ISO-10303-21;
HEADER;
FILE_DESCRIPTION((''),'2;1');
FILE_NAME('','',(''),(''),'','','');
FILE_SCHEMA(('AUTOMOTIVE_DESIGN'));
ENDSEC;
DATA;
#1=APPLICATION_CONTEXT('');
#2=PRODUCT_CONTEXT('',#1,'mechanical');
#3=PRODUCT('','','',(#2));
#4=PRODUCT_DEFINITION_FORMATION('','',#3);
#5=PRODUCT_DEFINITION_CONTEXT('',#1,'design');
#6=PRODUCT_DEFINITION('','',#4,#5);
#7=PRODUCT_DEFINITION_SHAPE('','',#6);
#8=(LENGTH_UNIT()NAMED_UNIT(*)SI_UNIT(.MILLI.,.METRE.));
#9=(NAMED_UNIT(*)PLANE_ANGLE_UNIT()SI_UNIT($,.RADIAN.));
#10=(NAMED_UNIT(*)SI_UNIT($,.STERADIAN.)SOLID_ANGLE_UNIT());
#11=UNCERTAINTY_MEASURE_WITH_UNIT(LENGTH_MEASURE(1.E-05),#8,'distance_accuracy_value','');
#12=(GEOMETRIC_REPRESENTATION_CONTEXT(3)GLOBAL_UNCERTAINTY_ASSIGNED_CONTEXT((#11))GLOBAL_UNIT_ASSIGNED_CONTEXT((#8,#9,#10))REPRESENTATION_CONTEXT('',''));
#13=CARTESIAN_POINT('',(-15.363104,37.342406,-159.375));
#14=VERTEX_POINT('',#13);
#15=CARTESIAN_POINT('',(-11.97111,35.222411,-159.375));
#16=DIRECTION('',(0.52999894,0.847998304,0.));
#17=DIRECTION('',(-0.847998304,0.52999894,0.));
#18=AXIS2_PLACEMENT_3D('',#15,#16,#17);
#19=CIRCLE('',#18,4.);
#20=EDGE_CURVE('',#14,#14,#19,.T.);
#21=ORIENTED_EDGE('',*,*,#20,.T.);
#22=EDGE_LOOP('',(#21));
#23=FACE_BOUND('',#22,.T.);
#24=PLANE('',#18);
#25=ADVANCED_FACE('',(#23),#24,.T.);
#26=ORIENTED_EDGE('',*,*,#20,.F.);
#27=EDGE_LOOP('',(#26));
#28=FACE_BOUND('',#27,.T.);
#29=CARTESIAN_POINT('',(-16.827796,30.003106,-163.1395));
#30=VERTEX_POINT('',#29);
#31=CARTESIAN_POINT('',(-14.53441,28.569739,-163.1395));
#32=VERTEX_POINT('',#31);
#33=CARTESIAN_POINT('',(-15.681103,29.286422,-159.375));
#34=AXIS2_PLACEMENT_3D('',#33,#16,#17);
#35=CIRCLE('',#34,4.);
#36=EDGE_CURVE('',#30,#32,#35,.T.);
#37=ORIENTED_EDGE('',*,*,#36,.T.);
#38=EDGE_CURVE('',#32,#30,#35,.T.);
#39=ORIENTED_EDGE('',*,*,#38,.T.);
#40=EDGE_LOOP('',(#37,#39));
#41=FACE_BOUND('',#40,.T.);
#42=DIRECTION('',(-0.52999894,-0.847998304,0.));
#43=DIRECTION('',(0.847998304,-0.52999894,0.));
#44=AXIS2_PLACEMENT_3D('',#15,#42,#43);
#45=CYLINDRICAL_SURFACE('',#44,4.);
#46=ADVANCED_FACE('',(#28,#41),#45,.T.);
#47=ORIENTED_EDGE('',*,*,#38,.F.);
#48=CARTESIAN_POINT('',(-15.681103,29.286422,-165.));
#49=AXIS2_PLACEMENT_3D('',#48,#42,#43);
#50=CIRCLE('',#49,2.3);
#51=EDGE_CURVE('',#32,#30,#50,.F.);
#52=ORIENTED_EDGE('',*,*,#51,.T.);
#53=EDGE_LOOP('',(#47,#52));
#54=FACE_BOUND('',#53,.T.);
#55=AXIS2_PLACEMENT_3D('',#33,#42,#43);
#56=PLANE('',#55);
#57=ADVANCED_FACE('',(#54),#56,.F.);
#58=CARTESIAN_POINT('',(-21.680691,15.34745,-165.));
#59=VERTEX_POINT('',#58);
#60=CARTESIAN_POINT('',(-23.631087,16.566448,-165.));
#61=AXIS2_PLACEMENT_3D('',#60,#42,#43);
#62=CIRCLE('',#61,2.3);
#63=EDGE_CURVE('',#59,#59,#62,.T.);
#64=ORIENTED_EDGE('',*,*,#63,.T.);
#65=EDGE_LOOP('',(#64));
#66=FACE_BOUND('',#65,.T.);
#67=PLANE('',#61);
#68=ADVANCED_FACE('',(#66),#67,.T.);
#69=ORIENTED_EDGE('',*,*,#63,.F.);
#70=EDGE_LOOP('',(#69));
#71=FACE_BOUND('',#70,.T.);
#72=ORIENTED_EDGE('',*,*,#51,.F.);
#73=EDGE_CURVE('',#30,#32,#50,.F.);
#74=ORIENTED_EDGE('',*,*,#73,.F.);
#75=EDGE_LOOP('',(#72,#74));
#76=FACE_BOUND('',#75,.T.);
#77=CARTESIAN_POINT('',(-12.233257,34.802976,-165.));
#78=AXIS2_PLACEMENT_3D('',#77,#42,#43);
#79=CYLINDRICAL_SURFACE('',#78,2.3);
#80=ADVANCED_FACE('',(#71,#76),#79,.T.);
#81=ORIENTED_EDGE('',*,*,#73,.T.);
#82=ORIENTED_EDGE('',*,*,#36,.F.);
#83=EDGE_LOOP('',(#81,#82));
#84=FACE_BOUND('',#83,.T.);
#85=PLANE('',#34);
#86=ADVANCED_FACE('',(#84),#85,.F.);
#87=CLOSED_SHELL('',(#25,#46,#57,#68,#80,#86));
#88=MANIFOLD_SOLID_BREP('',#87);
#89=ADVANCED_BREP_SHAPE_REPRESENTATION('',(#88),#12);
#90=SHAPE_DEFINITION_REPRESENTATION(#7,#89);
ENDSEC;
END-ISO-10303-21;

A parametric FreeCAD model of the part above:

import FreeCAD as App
import Part
import Sketcher
Q = App.Units.Quantity

doc = App.newDocument("Part")
body = doc.addObject("PartDesign::Body", "Body")

# Sketch on an angled plane
sketch1 = body.newObject("Sketcher::SketchObject", "Sketch")
sketch1.Placement = App.Placement(App.Vector(0.807649, 1.292238, 0), App.Rotation(App.Vector(0.847998304, -0.52999894, 0), App.Vector(0, 0, 1), App.Vector(-0.52999894, -0.847998304, 0), "ZXY"))
sketch1.addGeometry(Part.Circle(App.Vector(-28.819321, -165, 0), App.Vector(0, 0, 1), 2.3), False)
sketch1.addConstraint(Sketcher.Constraint("Diameter", 0, Q("4.6 mm")))
sketch1.addConstraint(Sketcher.Constraint("DistanceY", 0, 3, -1, 1, Q("165 mm")))
sketch1.addConstraint(Sketcher.Constraint("DistanceX", 0, 3, -1, 1, Q("28.819321 mm")))
pad1 = body.newObject("PartDesign::Pad", "Pad")
pad1.Profile = sketch1
pad1.Length = 15
pad1.Reversed = True

# Sketch on an angled plane
sketch2 = body.newObject("Sketcher::SketchObject", "Sketch001")
sketch2.Placement = App.Placement(App.Vector(8.757633, 14.012213, 0), App.Rotation(App.Vector(0.847998304, -0.52999894, 0), App.Vector(0, 0, -1), App.Vector(0.52999894, 0.847998304, 0), "ZXY"))
sketch2.addGeometry(Part.Circle(App.Vector(-28.819321, 159.375, 0), App.Vector(0, 0, 1), 4), False)
sketch2.addConstraint(Sketcher.Constraint("Diameter", 0, Q("8 mm")))
sketch2.addConstraint(Sketcher.Constraint("DistanceY", -1, 1, 0, 3, Q("159.375 mm")))
sketch2.addConstraint(Sketcher.Constraint("DistanceX", 0, 3, -1, 1, Q("28.819321 mm")))
pad2 = body.newObject("PartDesign::Pad", "Pad001")
pad2.Profile = sketch2
pad2.Length = 7

doc.recompute()
